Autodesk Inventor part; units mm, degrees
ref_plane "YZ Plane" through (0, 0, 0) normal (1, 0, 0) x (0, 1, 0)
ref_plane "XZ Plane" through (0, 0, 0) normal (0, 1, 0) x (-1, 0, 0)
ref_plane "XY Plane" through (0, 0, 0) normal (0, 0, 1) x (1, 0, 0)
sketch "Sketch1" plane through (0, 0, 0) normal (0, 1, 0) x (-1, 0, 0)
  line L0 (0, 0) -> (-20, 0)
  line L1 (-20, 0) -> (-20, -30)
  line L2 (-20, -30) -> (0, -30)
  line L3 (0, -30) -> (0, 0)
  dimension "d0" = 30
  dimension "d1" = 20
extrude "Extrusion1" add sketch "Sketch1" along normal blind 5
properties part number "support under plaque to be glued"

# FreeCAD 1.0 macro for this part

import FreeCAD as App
import Part
import Sketcher
Q = App.Units.Quantity

doc = App.newDocument("Part")
params = doc.addObject("Spreadsheet::Sheet", "Params")
for row, (alias, value) in enumerate([
    ("sketch1_width", "20 mm"),
    ("sketch1_height", "30 mm"),
    ("pad1_length", "5 mm"),
], start=1):
    params.set(f"A{row}", alias)
    params.set(f"B{row}", "=" + value)
    params.setAlias(f"B{row}", alias)

body = doc.addObject("PartDesign::Body", "Body")

sketch1 = doc.addObject("Sketcher::SketchObject", "Sketch")
body.addObject(sketch1)
sketch1.AttachmentSupport = (doc.XZ_Plane, [""])
sketch1.MapMode = "FlatFace"
sketch1.addGeometry(Part.LineSegment(App.Vector(0, -30, 0), App.Vector(0, 0, 0)), False)
sketch1.addGeometry(Part.LineSegment(App.Vector(0, 0, 0), App.Vector(20, 0, 0)), False)
sketch1.addGeometry(Part.LineSegment(App.Vector(20, 0, 0), App.Vector(20, -30, 0)), False)
sketch1.addGeometry(Part.LineSegment(App.Vector(20, -30, 0), App.Vector(0, -30, 0)), False)
sketch1.addConstraint(Sketcher.Constraint("Coincident", 0, 2, 1, 1))
sketch1.addConstraint(Sketcher.Constraint("Coincident", 1, 2, 2, 1))
sketch1.addConstraint(Sketcher.Constraint("Coincident", 2, 2, 3, 1))
sketch1.addConstraint(Sketcher.Constraint("Coincident", 3, 2, 0, 1))
sketch1.addConstraint(Sketcher.Constraint("Vertical", 0))
sketch1.addConstraint(Sketcher.Constraint("Horizontal", 1))
sketch1.addConstraint(Sketcher.Constraint("Vertical", 2))
sketch1.addConstraint(Sketcher.Constraint("Horizontal", 3))
sketch1.addConstraint(Sketcher.Constraint("Coincident", 0, 2, -1, 1))
sketch1.addConstraint(Sketcher.Constraint("DistanceX", 1, 1, 1, 2, Q("20 mm")))
sketch1.addConstraint(Sketcher.Constraint("DistanceY", 0, 1, 0, 2, Q("30 mm")))
sketch1.setExpression("Constraints[9]", "Params.sketch1_width")
sketch1.setExpression("Constraints[10]", "Params.sketch1_height")
pad1 = doc.addObject("PartDesign::Pad", "Pad")
body.addObject(pad1)
pad1.Profile = sketch1
pad1.setExpression("Length", "Params.pad1_length")
pad1.Reversed = True

doc.recompute()
